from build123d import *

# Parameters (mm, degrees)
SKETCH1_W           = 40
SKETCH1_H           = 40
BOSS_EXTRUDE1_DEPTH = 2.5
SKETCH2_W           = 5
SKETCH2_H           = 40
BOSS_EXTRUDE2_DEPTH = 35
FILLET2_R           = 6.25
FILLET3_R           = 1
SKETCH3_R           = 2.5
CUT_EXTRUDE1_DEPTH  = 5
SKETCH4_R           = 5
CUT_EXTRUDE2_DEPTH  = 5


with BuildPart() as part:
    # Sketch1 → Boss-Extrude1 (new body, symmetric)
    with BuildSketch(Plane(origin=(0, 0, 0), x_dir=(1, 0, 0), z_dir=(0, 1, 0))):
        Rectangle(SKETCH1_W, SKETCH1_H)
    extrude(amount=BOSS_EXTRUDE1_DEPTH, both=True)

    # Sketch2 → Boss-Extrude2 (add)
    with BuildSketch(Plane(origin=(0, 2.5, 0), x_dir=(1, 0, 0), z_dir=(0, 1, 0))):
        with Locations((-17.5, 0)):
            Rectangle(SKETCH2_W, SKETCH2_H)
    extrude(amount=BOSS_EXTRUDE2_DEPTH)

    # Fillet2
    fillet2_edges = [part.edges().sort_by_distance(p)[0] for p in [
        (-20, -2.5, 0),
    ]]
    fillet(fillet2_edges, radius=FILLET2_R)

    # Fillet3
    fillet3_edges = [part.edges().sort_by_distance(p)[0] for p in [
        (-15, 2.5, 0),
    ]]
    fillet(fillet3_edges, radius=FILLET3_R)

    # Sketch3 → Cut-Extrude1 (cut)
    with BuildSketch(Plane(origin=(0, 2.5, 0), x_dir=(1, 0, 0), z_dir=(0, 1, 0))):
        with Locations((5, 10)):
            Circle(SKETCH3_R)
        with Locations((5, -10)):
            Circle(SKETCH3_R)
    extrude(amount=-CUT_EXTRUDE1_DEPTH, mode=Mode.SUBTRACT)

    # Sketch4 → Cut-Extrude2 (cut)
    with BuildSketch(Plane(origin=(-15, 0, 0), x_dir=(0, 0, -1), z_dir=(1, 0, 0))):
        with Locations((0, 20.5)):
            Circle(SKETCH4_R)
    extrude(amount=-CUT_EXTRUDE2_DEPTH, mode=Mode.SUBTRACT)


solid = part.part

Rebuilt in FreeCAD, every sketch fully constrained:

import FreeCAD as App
import Part
import Sketcher


def edges_at(feature, points):
    """Names of the edges that pass closest to the given points."""
    edges = feature.Shape.Edges
    near = lambda p: min(range(len(edges)), key=lambda i: edges[i].distToShape(Part.Vertex(*p))[0])
    return sorted({f"Edge{near(p) + 1}" for p in points})

doc = App.newDocument("Part")
body = doc.addObject("PartDesign::Body", "Body")

# Sketch on XZ plane
sketch1 = body.newObject("Sketcher::SketchObject", "Sketch")
sketch1.AttachmentSupport = (doc.getObject("XZ_Plane"), [""])
sketch1.MapMode = "FlatFace"
sketch1.addGeometry(Part.LineSegment(App.Vector(-20, -20, 0), App.Vector(-20, 20, 0)), False)
sketch1.addGeometry(Part.LineSegment(App.Vector(-20, 20, 0), App.Vector(20, 20, 0)), False)
sketch1.addGeometry(Part.LineSegment(App.Vector(20, 20, 0), App.Vector(20, -20, 0)), False)
sketch1.addGeometry(Part.LineSegment(App.Vector(20, -20, 0), App.Vector(-20, -20, 0)), False)
sketch1.addConstraint(Sketcher.Constraint("Coincident", 0, 2, 1, 1))
sketch1.addConstraint(Sketcher.Constraint("Coincident", 1, 2, 2, 1))
sketch1.addConstraint(Sketcher.Constraint("Coincident", 2, 2, 3, 1))
sketch1.addConstraint(Sketcher.Constraint("Coincident", 3, 2, 0, 1))
sketch1.addConstraint(Sketcher.Constraint("Vertical", 0))
sketch1.addConstraint(Sketcher.Constraint("Horizontal", 1))
sketch1.addConstraint(Sketcher.Constraint("Vertical", 2))
sketch1.addConstraint(Sketcher.Constraint("Horizontal", 3))
sketch1.addConstraint(Sketcher.Constraint("Symmetric", 0, 2, 2, 2, -1, 1))
sketch1.addConstraint(Sketcher.Constraint("Equal", 3, 0))
sketch1.addConstraint(Sketcher.Constraint("DistanceX", 1, 1, 1, 2, 40.0))
pad1 = body.newObject("PartDesign::Pad", "Pad")
pad1.Profile = sketch1
pad1.Length = 5
pad1.Midplane = True

# Sketch on XZ plane
sketch2 = body.newObject("Sketcher::SketchObject", "Sketch001")
sketch2.AttachmentSupport = (doc.getObject("XZ_Plane"), [""])
sketch2.MapMode = "FlatFace"
sketch2.AttachmentOffset = App.Placement(App.Vector(0, 0, -2.5), App.Rotation())
sketch2.addGeometry(Part.LineSegment(App.Vector(-20, -20, 0), App.Vector(-20, 20, 0)), False)
sketch2.addGeometry(Part.LineSegment(App.Vector(-20, 20, 0), App.Vector(-15, 20, 0)), False)
sketch2.addGeometry(Part.LineSegment(App.Vector(-15, 20, 0), App.Vector(-15, -20, 0)), False)
sketch2.addGeometry(Part.LineSegment(App.Vector(-15, -20, 0), App.Vector(-20, -20, 0)), False)
sketch2.addConstraint(Sketcher.Constraint("Coincident", 0, 2, 1, 1))
sketch2.addConstraint(Sketcher.Constraint("Coincident", 1, 2, 2, 1))
sketch2.addConstraint(Sketcher.Constraint("Coincident", 2, 2, 3, 1))
sketch2.addConstraint(Sketcher.Constraint("Coincident", 3, 2, 0, 1))
sketch2.addConstraint(Sketcher.Constraint("Vertical", 0))
sketch2.addConstraint(Sketcher.Constraint("Horizontal", 1))
sketch2.addConstraint(Sketcher.Constraint("Vertical", 2))
sketch2.addConstraint(Sketcher.Constraint("Horizontal", 3))
sketch2.addConstraint(Sketcher.Constraint("DistanceX", 1, 1, 1, 2, 5.0))
sketch2.addConstraint(Sketcher.Constraint("DistanceY", 0, 1, 0, 2, 40.0))
sketch2.addConstraint(Sketcher.Constraint("DistanceX", 0, 2, -1, 1, 20.0))
sketch2.addConstraint(Sketcher.Constraint("DistanceY", -1, 1, 0, 2, 20.0))
pad2 = body.newObject("PartDesign::Pad", "Pad001")
pad2.Profile = sketch2
pad2.Length = 35
pad2.Reversed = True
doc.recompute()

fillet = body.newObject("PartDesign::Fillet", "Fillet")
fillet.Base = (pad2, edges_at(pad2, [(-20, -2.5, 0)]))
fillet.Radius = 6.25
doc.recompute()

fillet2 = body.newObject("PartDesign::Fillet", "Fillet001")
fillet2.Base = (fillet, edges_at(fillet, [(-15, 2.5, 0)]))
fillet2.Radius = 1

# Sketch on XZ plane
sketch3 = body.newObject("Sketcher::SketchObject", "Sketch002")
sketch3.AttachmentSupport = (doc.getObject("XZ_Plane"), [""])
sketch3.MapMode = "FlatFace"
sketch3.AttachmentOffset = App.Placement(App.Vector(0, 0, -2.5), App.Rotation())
sketch3.addGeometry(Part.Circle(App.Vector(5, -10, 0), App.Vector(0, 0, 1), 2.5), False)
sketch3.addGeometry(Part.Circle(App.Vector(5, 10, 0), App.Vector(0, 0, 1), 2.5), False)
sketch3.addConstraint(Sketcher.Constraint("Equal", 0, 1))
sketch3.addConstraint(Sketcher.Constraint("Symmetric", 0, 3, 1, 3, -1))
sketch3.addConstraint(Sketcher.Constraint("Diameter", 0, 5.0))
sketch3.addConstraint(Sketcher.Constraint("DistanceX", -1, 1, 0, 3, 5.0))
sketch3.addConstraint(Sketcher.Constraint("DistanceY", 0, 3, -1, 1, 10.0))
pocket1 = body.newObject("PartDesign::Pocket", "Pocket")
pocket1.Profile = sketch3
pocket1.Length = 5
pocket1.Reversed = True

# Sketch on YZ plane
sketch4 = body.newObject("Sketcher::SketchObject", "Sketch003")
sketch4.AttachmentSupport = (doc.getObject("YZ_Plane"), [""])
sketch4.MapMode = "FlatFace"
sketch4.AttachmentOffset = App.Placement(App.Vector(0, 0, -15), App.Rotation())
sketch4.addGeometry(Part.Circle(App.Vector(20, 0, 0), App.Vector(0, 0, 1), 5), False)
sketch4.addConstraint(Sketcher.Constraint("PointOnObject", 0, 3, -1))
sketch4.addConstraint(Sketcher.Constraint("Diameter", 0, 10.0))
sketch4.addConstraint(Sketcher.Constraint("DistanceX", -1, 1, 0, 3, 20.5))
pocket2 = body.newObject("PartDesign::Pocket", "Pocket001")
pocket2.Profile = sketch4
pocket2.Length = 5

doc.recompute()
